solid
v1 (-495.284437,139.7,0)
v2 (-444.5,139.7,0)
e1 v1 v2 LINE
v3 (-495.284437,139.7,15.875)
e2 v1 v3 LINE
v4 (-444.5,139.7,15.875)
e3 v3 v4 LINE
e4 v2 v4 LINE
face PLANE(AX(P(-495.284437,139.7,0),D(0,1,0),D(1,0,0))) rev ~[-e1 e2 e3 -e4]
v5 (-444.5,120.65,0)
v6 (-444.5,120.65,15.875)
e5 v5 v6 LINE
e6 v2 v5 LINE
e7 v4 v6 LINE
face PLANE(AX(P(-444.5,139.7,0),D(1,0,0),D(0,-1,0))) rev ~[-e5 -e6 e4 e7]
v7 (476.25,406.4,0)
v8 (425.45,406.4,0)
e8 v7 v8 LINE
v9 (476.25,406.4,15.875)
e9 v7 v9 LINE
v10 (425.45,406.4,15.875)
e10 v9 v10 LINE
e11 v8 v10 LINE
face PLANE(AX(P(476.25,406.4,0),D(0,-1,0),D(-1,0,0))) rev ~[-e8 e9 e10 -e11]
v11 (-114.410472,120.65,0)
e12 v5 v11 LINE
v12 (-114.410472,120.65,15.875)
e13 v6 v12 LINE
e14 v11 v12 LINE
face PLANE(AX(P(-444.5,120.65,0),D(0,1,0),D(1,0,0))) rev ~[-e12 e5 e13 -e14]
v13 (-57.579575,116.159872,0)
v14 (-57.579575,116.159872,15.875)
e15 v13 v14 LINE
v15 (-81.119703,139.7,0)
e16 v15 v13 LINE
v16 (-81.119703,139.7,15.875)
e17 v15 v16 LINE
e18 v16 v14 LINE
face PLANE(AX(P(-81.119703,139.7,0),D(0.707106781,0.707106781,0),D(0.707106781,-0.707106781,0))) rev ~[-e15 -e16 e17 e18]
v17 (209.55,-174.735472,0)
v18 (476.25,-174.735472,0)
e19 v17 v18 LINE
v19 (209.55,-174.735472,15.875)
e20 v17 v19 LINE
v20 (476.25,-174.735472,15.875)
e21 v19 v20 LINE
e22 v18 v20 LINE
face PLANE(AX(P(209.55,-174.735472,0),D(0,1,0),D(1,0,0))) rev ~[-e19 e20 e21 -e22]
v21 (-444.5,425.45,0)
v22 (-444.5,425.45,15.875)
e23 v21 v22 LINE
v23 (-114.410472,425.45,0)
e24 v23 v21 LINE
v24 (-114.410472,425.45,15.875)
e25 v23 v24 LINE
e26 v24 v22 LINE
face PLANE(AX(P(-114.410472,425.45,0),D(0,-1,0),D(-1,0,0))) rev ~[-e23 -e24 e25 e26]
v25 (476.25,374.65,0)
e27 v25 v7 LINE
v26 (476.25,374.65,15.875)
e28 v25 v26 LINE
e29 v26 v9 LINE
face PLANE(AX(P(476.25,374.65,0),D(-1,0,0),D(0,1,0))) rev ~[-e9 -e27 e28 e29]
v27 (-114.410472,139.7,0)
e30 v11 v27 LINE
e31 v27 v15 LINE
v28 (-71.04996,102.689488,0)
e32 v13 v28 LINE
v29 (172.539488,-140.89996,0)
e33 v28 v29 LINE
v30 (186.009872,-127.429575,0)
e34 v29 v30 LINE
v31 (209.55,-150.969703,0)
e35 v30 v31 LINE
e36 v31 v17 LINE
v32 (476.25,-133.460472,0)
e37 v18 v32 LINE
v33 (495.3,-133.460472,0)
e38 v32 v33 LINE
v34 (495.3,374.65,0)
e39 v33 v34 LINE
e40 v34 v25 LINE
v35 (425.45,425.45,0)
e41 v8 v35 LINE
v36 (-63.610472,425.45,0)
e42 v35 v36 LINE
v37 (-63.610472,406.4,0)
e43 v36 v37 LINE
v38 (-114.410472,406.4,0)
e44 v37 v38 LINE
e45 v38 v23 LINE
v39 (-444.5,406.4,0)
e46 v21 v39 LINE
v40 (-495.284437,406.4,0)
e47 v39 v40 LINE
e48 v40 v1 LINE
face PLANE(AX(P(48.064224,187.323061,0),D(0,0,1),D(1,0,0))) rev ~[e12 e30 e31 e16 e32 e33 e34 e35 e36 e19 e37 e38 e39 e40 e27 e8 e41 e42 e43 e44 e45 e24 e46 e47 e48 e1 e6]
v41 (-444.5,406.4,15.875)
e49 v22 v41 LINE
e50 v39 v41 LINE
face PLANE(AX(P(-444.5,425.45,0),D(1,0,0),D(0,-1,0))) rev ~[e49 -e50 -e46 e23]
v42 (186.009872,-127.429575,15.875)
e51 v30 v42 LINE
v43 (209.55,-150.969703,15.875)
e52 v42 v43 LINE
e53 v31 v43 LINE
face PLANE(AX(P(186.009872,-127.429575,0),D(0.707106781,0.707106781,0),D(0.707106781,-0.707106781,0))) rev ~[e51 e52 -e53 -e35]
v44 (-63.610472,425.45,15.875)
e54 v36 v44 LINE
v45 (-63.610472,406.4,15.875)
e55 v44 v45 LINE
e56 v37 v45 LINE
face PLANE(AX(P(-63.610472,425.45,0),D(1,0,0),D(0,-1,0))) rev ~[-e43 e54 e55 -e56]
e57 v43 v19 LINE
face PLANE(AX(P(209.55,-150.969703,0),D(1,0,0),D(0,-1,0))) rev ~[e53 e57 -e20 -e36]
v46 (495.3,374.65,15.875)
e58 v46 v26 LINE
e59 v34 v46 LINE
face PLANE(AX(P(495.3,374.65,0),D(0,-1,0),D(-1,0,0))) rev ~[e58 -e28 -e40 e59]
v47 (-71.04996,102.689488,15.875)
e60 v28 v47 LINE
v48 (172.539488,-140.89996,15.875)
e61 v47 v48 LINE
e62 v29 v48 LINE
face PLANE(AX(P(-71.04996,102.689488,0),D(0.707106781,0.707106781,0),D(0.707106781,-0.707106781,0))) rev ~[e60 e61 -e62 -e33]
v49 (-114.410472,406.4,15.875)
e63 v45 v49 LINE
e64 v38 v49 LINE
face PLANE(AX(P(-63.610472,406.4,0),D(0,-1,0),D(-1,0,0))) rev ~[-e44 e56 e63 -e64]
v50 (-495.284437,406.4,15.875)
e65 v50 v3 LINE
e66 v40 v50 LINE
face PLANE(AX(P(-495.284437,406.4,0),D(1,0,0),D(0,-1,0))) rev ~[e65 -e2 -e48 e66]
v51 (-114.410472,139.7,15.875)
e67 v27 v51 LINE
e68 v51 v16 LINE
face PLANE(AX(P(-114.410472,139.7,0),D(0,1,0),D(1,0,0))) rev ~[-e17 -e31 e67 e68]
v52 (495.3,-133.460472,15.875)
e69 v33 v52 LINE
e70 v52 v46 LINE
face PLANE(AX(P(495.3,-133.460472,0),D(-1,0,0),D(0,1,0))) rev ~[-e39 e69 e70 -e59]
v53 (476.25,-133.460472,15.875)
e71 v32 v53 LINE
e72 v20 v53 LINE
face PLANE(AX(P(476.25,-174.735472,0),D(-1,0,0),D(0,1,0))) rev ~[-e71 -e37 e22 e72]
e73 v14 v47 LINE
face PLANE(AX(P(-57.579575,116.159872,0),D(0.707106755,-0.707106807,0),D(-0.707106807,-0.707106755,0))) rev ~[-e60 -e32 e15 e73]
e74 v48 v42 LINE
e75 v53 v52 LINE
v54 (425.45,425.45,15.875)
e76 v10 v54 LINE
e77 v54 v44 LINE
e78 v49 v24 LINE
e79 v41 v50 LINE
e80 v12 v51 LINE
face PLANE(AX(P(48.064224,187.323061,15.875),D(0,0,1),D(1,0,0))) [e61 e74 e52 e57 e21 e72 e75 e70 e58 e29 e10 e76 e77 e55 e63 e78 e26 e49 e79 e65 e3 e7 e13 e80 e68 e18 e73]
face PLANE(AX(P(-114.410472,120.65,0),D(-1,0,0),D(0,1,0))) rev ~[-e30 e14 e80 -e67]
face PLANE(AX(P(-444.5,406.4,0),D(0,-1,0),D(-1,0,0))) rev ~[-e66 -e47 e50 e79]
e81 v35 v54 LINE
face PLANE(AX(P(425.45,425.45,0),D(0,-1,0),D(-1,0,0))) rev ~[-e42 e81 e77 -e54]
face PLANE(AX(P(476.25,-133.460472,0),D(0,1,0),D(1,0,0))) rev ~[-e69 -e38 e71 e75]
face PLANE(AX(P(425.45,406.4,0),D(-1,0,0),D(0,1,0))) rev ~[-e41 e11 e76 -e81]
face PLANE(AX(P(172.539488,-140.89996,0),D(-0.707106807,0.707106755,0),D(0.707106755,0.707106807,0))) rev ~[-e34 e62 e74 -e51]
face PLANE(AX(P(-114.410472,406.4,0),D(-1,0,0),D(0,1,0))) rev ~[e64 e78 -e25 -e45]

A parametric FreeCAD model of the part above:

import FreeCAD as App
import Part
import Sketcher

V = App.Vector
Q = App.Units.Quantity


def add_polygon(sketch, points):
    """Adds a closed chain of lines whose ends are joined by coincident constraints."""
    first, n = sketch.GeometryCount, len(points)
    for a, b in zip(points, points[1:] + points[:1]):
        sketch.addGeometry(Part.LineSegment(App.Vector(*a, 0), App.Vector(*b, 0)), False)
    for i in range(n):
        sketch.addConstraint(Sketcher.Constraint("Coincident", first + i, 2, first + (i + 1) % n, 1))

doc = App.newDocument("Part")
params = doc.addObject("Spreadsheet::Sheet", "Params")
for row, (alias, value) in enumerate([
    ("sketch1_width", "2 in"),
    ("sketch1_width2", "10.5 in"),
    ("sketch1_length", "0.75 in"),
    ("sketch1_height", "1.625 in"),
    ("sketch1_length2", "13.5625 in"),
    ("pad1_length", "0.625 in"),
], start=1):
    params.set(f"A{row}", alias)
    params.set(f"B{row}", "=" + value)
    params.setAlias(f"B{row}", alias)

body = doc.addObject("PartDesign::Body", "Body")

# Sketch on XY plane
sketch1 = body.newObject("Sketcher::SketchObject", "Sketch")
sketch1.AttachmentSupport = (doc.getObject("XY_Plane"), [""])
sketch1.MapMode = "FlatFace"
add_polygon(sketch1, [(-114.410472, 425.45), (-444.5, 425.45), (-444.5, 406.4), (-495.284437, 406.4), (-495.284437, 139.7), (-444.5, 139.7), (-444.5, 120.65), (-114.410472, 120.65), (-114.410472, 139.7), (-81.119703, 139.7), (-57.579575, 116.159872), (-71.04996, 102.689488), (172.539488, -140.89996), (186.009872, -127.429575), (209.55, -150.969703), (209.55, -174.735472), (476.25, -174.735472), (476.25, -133.460472), (495.3, -133.460472), (495.3, 374.65), (476.25, 374.65), (476.25, 406.4), (425.45, 406.4), (425.45, 425.45), (-63.610472, 425.45), (-63.610472, 406.4), (-114.410472, 406.4)])  # lines 0-26
sketch1.addConstraint([
    Sketcher.Constraint("Horizontal", 0),
    Sketcher.Constraint("Vertical", 1),
    Sketcher.Constraint("Horizontal", 2),
    Sketcher.Constraint("Vertical", 3),
    Sketcher.Constraint("Horizontal", 4),
    Sketcher.Constraint("Vertical", 5),
    Sketcher.Constraint("Horizontal", 6),
    Sketcher.Constraint("Vertical", 7),
    Sketcher.Constraint("Horizontal", 8),
    Sketcher.Constraint("Vertical", 14),
    Sketcher.Constraint("Horizontal", 15),
    Sketcher.Constraint("Vertical", 16),
    Sketcher.Constraint("Horizontal", 17),
    Sketcher.Constraint("Vertical", 18),
    Sketcher.Constraint("Horizontal", 19),
    Sketcher.Constraint("Vertical", 20),
    Sketcher.Constraint("Horizontal", 21),
    Sketcher.Constraint("Vertical", 22),
    Sketcher.Constraint("Horizontal", 23),
    Sketcher.Constraint("Vertical", 24),
    Sketcher.Constraint("Horizontal", 25),
    Sketcher.Constraint("Vertical", 26),
    Sketcher.Constraint("Perpendicular", 9, 10),
    Sketcher.Constraint("Perpendicular", 10, 11),
    Sketcher.Constraint("Perpendicular", 11, 12),
    Sketcher.Constraint("Perpendicular", 12, 13),
    Sketcher.Constraint("Horizontal", 4, 2, 7, 2),
    Sketcher.Constraint("Horizontal", 2, 2, 20, 2),
    Sketcher.Constraint("Horizontal", 0, 2, 22, 2),
    Sketcher.Constraint("Horizontal", 21, 2, 24, 2),
    Sketcher.Constraint("Vertical", 1, 2, 4, 2),
    Sketcher.Constraint("Vertical", 16, 2, 19, 2),
    Sketcher.Constraint("Vertical", 7, 2, 25, 2),
    Sketcher.Constraint("Equal", 21, 25),
    Sketcher.Constraint("Equal", 19, 1),
    Sketcher.Constraint("Equal", 15, 3),
    Sketcher.Constraint("Equal", 1, 5),
    Sketcher.Constraint("Equal", 10, 12),
    Sketcher.Constraint("Equal", 9, 13),
    Sketcher.Constraint("DistanceX", 21, 2, 21, 1, Q("2 in")),
    Sketcher.Constraint("DistanceX", 15, 1, 15, 2, Q("10.5 in")),
    Sketcher.Constraint("DistanceY", -1, 1, 1, 2, Q("16 in")),
    Sketcher.Constraint("Angle", 9, Q("-45 deg")),
    Sketcher.Constraint("DistanceY", 5, 2, 0, 2, Q("12 in")),
    Sketcher.Constraint("DistanceY", 19, 2, 22, 2, Q("2 in")),
    Sketcher.Constraint("DistanceX", 0, 2, -1, 1, Q("17.5 in")),
    Sketcher.Constraint("DistanceX", -1, 1, 17, 2, Q("19.5 in")),
    Sketcher.Constraint("Distance", 10, Q("0.75 in")),
    Sketcher.Constraint("DistanceY", 16, 1, 16, 2, Q("1.625 in")),
    Sketcher.Constraint("Distance", 11, Q("13.5625 in")),
    Sketcher.Constraint("DistanceX", 8, 1, 8, 2, Q("33.290769 mm")),
    Sketcher.Constraint("DistanceX", 23, 2, 23, 1, Q("489.060472 mm")),
    Sketcher.Constraint("DistanceY", 14, 2, 14, 1, Q("23.765769 mm")),
    Sketcher.Constraint("DistanceX", 2, 2, 2, 1, Q("50.784437 mm")),
])
sketch1.setExpression("Constraints[66]", "Params.sketch1_width")
sketch1.setExpression("Constraints[67]", "Params.sketch1_width2")
sketch1.setExpression("Constraints[74]", "Params.sketch1_length")
sketch1.setExpression("Constraints[75]", "Params.sketch1_height")
sketch1.setExpression("Constraints[76]", "Params.sketch1_length2")
pad1 = body.newObject("PartDesign::Pad", "Pad")
pad1.Profile = sketch1
pad1.setExpression("Length", "Params.pad1_length")

doc.recompute()
